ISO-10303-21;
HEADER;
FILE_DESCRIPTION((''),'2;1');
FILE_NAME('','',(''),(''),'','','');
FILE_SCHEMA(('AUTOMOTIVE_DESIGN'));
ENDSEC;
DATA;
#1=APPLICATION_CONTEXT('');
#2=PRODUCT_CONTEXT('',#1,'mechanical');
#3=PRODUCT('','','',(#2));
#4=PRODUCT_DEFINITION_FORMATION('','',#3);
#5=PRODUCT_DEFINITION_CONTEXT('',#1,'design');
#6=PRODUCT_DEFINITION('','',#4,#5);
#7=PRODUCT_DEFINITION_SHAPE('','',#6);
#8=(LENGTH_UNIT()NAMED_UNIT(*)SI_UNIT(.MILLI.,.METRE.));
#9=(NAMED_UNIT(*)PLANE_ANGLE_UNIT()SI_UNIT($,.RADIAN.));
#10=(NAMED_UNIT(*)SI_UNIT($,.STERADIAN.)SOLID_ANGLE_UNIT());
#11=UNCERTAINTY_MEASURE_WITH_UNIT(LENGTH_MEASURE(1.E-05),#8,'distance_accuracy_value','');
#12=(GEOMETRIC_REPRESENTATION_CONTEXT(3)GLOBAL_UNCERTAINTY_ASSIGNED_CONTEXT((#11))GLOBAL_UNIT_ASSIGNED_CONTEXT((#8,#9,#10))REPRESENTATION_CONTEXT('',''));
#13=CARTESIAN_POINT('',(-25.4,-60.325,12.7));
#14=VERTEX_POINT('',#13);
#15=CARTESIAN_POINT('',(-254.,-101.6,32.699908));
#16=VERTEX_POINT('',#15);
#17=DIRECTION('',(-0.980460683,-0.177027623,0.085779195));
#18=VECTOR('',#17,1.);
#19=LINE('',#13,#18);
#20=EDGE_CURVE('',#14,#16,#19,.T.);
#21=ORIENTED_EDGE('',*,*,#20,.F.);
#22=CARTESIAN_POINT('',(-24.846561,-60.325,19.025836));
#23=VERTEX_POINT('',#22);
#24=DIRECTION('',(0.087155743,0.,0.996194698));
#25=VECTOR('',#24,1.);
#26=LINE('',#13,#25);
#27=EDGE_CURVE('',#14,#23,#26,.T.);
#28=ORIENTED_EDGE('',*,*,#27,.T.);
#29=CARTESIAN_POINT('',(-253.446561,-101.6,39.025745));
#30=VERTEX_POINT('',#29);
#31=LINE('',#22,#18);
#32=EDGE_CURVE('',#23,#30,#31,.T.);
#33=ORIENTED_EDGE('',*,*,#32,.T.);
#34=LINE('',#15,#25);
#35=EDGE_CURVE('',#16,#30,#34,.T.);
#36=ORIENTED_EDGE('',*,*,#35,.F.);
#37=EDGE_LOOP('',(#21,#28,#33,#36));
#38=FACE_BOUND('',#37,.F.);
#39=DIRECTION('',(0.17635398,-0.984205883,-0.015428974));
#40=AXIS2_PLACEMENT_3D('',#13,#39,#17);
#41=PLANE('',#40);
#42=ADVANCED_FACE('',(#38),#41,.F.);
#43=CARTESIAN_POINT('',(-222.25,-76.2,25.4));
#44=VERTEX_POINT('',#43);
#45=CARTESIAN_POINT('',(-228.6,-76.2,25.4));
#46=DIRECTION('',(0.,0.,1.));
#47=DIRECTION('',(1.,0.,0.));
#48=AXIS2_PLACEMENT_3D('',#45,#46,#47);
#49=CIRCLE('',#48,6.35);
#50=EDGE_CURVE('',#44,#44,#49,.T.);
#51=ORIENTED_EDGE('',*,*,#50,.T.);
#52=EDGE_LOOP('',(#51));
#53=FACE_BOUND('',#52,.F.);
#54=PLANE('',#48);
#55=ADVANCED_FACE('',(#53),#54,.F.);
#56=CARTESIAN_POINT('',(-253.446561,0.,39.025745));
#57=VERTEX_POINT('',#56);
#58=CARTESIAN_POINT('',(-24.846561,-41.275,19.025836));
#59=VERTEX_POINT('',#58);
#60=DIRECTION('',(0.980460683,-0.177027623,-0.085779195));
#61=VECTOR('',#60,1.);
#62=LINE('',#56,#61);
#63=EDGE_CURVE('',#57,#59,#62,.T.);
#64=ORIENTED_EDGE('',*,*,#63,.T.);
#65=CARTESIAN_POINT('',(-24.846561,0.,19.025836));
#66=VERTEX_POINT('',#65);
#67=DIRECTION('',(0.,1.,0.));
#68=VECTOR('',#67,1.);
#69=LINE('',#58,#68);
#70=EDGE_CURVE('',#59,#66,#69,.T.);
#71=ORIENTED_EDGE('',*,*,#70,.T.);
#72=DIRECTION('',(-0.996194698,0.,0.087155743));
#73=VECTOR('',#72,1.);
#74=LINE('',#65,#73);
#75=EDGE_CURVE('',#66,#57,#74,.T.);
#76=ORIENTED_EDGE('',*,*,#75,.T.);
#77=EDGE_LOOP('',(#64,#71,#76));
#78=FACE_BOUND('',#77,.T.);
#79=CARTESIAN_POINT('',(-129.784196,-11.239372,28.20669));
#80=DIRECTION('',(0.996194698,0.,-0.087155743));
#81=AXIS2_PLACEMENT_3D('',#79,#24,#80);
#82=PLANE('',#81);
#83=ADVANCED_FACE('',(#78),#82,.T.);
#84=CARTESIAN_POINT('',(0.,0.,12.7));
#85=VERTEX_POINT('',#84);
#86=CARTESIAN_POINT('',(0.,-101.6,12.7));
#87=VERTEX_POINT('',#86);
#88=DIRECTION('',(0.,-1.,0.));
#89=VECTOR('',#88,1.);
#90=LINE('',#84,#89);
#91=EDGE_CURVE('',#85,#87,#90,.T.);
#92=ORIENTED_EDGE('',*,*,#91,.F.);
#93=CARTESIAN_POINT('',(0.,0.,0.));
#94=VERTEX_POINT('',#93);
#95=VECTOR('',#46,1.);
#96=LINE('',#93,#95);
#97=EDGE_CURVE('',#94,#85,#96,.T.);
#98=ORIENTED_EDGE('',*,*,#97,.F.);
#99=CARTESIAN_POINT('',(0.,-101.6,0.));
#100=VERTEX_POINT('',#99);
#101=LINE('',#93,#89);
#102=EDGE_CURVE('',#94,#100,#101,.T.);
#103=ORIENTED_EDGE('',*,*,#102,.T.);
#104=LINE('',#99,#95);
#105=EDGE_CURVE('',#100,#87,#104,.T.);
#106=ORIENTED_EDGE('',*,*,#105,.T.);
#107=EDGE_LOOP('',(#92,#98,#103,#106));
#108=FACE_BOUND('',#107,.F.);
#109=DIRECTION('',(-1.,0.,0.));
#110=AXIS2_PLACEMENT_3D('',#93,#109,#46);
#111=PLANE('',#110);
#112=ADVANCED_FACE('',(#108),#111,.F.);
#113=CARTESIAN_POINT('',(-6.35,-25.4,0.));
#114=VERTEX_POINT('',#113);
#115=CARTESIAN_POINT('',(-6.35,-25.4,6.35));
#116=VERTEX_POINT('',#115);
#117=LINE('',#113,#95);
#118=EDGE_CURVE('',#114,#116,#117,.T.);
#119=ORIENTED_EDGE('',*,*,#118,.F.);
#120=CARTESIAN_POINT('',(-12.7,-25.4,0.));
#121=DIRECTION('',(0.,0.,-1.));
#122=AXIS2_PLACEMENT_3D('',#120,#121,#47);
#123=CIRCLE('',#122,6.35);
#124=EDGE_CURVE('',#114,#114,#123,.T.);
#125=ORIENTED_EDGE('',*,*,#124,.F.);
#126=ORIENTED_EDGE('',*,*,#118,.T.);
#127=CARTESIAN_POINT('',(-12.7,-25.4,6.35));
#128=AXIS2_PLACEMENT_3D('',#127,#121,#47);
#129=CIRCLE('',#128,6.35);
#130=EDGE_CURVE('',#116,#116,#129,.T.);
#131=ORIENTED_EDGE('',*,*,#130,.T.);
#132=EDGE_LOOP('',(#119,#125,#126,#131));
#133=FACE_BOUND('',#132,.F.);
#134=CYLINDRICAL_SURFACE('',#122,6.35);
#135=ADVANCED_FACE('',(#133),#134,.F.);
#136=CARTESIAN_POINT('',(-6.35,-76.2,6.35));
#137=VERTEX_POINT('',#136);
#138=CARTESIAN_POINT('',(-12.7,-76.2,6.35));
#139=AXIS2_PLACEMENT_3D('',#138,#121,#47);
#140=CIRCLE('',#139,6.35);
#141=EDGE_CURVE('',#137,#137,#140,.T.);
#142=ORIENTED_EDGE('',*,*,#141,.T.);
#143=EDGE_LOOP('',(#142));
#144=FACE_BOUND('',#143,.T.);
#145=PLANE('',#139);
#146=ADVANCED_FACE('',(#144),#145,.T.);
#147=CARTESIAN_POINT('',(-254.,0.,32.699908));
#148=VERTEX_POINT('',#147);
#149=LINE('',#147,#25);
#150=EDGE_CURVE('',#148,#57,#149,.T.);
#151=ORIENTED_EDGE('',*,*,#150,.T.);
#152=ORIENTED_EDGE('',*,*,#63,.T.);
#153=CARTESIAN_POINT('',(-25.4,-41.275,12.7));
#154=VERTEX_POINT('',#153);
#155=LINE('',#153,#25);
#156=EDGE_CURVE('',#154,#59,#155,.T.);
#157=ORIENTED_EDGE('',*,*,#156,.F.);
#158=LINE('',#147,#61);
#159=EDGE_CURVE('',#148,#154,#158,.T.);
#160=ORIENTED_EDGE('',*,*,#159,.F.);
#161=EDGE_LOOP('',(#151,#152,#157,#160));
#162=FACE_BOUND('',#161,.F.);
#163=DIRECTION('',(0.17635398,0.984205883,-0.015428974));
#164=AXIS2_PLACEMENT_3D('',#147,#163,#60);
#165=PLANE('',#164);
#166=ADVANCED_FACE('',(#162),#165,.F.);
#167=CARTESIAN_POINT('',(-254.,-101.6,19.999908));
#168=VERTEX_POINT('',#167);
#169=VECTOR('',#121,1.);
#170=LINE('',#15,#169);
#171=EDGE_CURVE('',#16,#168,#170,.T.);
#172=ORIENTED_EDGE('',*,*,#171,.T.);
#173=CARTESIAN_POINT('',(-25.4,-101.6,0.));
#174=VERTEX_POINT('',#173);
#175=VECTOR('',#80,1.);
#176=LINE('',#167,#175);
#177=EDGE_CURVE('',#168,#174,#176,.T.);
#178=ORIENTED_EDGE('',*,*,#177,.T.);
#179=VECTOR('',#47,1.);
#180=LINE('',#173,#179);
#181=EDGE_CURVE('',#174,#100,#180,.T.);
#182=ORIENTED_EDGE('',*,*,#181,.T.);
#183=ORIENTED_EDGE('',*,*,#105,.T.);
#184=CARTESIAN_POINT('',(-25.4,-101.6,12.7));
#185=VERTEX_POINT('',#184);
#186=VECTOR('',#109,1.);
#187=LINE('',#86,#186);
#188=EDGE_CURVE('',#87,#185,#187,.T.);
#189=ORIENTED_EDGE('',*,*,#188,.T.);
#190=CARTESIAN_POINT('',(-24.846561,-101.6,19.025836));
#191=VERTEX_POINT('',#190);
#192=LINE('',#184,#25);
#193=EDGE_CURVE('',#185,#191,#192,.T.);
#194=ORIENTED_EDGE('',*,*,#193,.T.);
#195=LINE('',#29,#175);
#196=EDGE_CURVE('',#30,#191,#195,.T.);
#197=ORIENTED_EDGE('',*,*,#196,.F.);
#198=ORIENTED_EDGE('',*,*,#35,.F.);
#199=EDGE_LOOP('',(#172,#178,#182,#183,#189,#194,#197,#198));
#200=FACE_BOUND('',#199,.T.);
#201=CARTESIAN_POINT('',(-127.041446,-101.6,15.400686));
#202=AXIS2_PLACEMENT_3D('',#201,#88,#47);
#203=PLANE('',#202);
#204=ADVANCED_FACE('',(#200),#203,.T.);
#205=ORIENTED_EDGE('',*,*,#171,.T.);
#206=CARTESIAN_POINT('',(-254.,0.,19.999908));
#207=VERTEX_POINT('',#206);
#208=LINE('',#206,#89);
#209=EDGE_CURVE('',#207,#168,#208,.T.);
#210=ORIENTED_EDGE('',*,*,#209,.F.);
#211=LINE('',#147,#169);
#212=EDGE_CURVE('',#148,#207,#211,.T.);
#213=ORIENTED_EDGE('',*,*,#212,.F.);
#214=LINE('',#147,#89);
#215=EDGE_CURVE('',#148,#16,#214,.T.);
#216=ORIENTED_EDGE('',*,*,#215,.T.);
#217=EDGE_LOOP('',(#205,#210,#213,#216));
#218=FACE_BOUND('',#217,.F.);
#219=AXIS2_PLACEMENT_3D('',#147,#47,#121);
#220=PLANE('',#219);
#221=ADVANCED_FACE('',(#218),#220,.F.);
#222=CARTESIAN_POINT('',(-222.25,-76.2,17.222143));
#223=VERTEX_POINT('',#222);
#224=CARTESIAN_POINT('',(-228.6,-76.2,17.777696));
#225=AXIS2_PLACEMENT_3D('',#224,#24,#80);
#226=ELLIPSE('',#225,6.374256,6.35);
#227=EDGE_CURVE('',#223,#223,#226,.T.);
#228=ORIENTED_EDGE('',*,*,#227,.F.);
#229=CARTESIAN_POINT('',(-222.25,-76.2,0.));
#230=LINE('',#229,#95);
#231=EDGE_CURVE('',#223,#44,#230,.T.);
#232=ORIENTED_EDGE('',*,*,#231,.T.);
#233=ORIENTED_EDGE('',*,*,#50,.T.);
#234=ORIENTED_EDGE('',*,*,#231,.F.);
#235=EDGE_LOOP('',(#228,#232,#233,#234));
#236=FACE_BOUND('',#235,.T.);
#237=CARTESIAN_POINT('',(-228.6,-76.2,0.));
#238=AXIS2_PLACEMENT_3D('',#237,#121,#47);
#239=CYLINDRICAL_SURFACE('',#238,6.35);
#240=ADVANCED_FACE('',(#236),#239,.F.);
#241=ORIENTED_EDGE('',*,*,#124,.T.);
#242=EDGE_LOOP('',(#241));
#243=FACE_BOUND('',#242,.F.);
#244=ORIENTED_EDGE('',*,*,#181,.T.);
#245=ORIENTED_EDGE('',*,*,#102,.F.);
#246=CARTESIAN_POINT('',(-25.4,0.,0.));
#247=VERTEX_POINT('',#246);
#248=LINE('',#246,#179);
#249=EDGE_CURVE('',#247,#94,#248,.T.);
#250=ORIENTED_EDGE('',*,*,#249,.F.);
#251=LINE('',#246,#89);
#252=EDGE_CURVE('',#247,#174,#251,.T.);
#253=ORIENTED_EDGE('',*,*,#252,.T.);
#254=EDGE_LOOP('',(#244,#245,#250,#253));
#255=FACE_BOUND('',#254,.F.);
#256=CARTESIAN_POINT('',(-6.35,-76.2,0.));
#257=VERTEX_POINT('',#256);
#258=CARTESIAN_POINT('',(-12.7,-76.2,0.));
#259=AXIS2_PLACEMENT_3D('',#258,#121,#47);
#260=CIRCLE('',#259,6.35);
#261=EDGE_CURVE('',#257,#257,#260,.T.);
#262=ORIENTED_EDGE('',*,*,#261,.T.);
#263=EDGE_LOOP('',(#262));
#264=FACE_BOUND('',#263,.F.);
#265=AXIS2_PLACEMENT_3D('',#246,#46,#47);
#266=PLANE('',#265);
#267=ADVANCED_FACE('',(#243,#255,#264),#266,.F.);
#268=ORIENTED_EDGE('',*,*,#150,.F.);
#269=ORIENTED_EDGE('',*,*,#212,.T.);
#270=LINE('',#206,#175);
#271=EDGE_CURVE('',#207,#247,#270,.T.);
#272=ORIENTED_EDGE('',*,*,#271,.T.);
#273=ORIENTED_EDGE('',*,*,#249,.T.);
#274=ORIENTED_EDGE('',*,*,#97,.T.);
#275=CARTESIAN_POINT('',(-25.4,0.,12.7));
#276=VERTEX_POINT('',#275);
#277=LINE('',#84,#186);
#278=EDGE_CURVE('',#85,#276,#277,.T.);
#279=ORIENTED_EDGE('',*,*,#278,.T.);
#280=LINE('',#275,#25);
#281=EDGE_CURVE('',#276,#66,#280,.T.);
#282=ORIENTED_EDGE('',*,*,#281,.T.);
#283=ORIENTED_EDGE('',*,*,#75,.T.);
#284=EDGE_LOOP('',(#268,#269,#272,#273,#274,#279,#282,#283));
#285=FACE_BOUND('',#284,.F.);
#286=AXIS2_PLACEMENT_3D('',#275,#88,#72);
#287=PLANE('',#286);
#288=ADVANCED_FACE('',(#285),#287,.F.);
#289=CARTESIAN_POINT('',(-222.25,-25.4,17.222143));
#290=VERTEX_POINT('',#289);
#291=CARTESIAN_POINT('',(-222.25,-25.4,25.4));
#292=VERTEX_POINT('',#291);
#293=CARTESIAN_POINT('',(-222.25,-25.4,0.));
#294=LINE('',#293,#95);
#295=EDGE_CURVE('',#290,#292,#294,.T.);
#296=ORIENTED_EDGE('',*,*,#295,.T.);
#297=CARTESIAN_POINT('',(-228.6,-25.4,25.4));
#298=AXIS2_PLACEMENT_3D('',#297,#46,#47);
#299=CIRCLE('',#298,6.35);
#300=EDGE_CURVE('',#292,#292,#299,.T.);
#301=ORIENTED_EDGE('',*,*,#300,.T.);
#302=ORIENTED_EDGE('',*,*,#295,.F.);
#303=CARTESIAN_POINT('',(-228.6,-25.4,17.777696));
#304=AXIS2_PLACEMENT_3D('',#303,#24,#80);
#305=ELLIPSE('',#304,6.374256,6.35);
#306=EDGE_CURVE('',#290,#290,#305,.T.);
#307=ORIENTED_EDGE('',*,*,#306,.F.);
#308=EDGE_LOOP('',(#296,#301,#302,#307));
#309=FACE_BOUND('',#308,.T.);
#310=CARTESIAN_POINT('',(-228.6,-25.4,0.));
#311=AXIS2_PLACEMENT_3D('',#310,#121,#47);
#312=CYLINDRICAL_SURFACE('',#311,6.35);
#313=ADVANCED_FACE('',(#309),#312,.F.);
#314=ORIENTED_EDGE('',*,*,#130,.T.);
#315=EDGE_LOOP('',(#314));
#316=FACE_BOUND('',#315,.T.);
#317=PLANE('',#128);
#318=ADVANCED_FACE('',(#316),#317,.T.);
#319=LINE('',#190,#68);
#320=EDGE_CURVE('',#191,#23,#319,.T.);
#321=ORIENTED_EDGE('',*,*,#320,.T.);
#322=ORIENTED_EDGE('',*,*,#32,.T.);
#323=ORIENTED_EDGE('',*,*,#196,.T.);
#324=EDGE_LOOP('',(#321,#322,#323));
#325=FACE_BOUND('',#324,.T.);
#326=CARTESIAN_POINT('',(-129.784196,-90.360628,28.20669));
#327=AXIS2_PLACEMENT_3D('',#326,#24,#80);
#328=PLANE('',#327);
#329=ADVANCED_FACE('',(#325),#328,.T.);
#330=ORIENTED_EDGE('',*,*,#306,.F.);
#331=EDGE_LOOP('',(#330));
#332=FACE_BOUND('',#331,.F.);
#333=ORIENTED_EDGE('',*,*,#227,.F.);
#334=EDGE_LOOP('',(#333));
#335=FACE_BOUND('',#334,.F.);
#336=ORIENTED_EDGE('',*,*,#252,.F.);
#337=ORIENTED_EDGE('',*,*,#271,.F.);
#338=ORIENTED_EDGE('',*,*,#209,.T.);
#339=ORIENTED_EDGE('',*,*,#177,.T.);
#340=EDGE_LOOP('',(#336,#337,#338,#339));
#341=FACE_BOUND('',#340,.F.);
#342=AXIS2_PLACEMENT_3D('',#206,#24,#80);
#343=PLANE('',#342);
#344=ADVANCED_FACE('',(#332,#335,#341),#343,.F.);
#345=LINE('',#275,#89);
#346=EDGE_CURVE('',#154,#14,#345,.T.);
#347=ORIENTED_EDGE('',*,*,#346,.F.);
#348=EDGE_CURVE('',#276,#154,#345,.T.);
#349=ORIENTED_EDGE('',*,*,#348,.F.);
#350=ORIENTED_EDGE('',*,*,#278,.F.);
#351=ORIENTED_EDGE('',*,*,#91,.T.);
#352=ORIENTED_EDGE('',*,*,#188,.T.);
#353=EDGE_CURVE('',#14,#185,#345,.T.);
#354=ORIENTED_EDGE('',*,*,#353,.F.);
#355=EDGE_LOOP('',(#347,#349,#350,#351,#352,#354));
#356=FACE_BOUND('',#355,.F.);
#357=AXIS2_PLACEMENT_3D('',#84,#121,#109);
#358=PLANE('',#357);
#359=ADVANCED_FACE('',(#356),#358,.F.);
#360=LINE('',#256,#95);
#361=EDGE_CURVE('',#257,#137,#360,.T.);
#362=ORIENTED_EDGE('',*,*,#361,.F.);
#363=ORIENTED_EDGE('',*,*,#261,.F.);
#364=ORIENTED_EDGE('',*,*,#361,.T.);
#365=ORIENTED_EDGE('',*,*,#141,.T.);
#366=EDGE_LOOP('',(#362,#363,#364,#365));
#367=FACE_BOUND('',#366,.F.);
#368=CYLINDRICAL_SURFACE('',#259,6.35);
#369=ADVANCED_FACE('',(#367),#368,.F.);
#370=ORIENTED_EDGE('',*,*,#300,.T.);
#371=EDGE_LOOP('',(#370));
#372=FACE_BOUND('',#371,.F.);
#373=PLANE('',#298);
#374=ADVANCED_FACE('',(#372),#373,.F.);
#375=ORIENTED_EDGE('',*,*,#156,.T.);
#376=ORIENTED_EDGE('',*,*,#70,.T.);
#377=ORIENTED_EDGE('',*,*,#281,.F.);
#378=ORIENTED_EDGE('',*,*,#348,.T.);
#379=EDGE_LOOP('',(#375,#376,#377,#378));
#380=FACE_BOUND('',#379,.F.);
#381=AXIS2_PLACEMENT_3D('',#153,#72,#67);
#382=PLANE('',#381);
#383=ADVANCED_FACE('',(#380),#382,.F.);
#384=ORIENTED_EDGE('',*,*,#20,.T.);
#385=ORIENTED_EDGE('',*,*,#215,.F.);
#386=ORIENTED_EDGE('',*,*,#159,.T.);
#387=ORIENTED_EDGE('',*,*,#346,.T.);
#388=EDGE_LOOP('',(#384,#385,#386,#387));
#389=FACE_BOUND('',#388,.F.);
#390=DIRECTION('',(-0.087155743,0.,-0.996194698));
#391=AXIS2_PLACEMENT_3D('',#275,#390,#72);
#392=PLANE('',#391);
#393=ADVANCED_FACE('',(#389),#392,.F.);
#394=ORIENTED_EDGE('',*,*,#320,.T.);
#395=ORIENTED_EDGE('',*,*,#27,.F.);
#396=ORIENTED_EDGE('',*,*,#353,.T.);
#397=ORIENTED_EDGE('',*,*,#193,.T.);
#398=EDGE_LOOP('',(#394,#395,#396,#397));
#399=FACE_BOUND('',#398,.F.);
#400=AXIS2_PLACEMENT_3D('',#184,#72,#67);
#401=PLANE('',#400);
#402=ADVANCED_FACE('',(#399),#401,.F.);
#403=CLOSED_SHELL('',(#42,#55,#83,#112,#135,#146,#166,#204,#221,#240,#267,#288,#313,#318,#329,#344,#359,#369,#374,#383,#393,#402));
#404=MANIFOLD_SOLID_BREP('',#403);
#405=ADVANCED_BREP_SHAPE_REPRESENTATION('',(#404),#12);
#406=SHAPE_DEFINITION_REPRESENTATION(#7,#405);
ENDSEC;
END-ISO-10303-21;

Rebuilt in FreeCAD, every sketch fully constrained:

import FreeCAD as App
import Part
import Sketcher
Q = App.Units.Quantity


def add_polygon(sketch, points):
    """Adds a closed chain of lines whose ends are joined by coincident constraints."""
    first, n = sketch.GeometryCount, len(points)
    for a, b in zip(points, points[1:] + points[:1]):
        sketch.addGeometry(Part.LineSegment(App.Vector(*a, 0), App.Vector(*b, 0)), False)
    for i in range(n):
        sketch.addConstraint(Sketcher.Constraint("Coincident", first + i, 2, first + (i + 1) % n, 1))

doc = App.newDocument("Part")
body = doc.addObject("PartDesign::Body", "Body")

sketch1 = body.newObject("Sketcher::SketchObject", "Sketch")
sketch1.AttachmentSupport = (doc.getObject("XZ_Plane"), [""])
sketch1.MapMode = "FlatFace"
add_polygon(sketch1, [(-25, 0), (0, 0), (0, 13), (-25, 13), (-254, 33), (-254, 20)])
sketch1.addConstraint([
    Sketcher.Constraint("Horizontal", 0),
    Sketcher.Constraint("Vertical", 1),
    Sketcher.Constraint("Horizontal", 2),
    Sketcher.Constraint("Vertical", 4),
    Sketcher.Constraint("Coincident", 0, 2, -1, 1),
    Sketcher.Constraint("Parallel", 3, 5),
    Sketcher.Constraint("Vertical", 2, 2, 5, 2),
    Sketcher.Constraint("DistanceX", 0, 1, 0, 2, Q("1 in")),
    Sketcher.Constraint("DistanceY", 1, 1, 1, 2, Q("0.5 in")),
    Sketcher.Constraint("DistanceX", 3, 2, -1, 1, Q("10 in")),
    Sketcher.Constraint("Angle", 3, Q("175 deg")),
])
pad1 = body.newObject("PartDesign::Pad", "Pad")
pad1.Profile = sketch1
pad1.Length = Q("4 in")

sketch2 = body.newObject("Sketcher::SketchObject", "Sketch001")
sketch2.Placement = App.Placement(App.Vector(0.909724, 0, 10.398197), App.Rotation(App.Vector(0.996194698, 0, -0.087155743), App.Vector(0, 1, 0), App.Vector(0.087155743, 0, 0.996194698), "ZXY"))
add_polygon(sketch2, [(-26, 0), (-256, 0), (-26, -41)])
add_polygon(sketch2, [(-26, -60), (-256, -102), (-26, -102)])
sketch2.addConstraint([
    Sketcher.Constraint("Horizontal", 0),
    Sketcher.Constraint("Vertical", 2),
    Sketcher.Constraint("Horizontal", 4),
    Sketcher.Constraint("Vertical", 5),
    Sketcher.Constraint("PointOnObject", 0, 2, -1),
    Sketcher.Constraint("Vertical", 0, 2, 3, 2),
    Sketcher.Constraint("Vertical", 2, 2, 4, 2),
    Sketcher.Constraint("Equal", 2, 5),
    Sketcher.Constraint("DistanceY", 3, 2, -1, 1, Q("4 in")),
    Sketcher.Constraint("DistanceY", 2, 1, 2, 2, Q("1.625 in")),
    Sketcher.Constraint("DistanceX", 0, 2, 0, 1, Q("229.473215 mm")),
    Sketcher.Constraint("DistanceX", 0, 2, -1, 1, Q("255.883438 mm")),
])
pad2 = body.newObject("PartDesign::Pad", "Pad001")
pad2.Profile = sketch2
pad2.Length = Q("0.25 in")

sketch3 = body.newObject("Sketcher::SketchObject", "Sketch002")
sketch3.AttachmentSupport = (doc.getObject("XY_Plane"), [""])
sketch3.MapMode = "FlatFace"
sketch3.addGeometry([
    Part.Circle(App.Vector(-229, -25, 0), App.Vector(0, 0, 1), 6),
    Part.Circle(App.Vector(-229, -76, 0), App.Vector(0, 0, 1), 6),
], False)
sketch3.addConstraint([
    Sketcher.Constraint("Equal", 0, 1),
    Sketcher.Constraint("Vertical", 0, 3, 1, 3),
    Sketcher.Constraint("Diameter", 0, Q("0.5 in")),
    Sketcher.Constraint("DistanceX", 0, 3, -1, 1, Q("9 in")),
    Sketcher.Constraint("DistanceY", 0, 3, -1, 1, Q("1 in")),
    Sketcher.Constraint("DistanceY", 1, 3, -1, 1, Q("3 in")),
])
pocket1 = body.newObject("PartDesign::Pocket", "Pocket")
pocket1.Profile = sketch3
pocket1.Length = Q("1 in")
pocket1.Reversed = True

sketch4 = body.newObject("Sketcher::SketchObject", "Sketch003")
sketch4.AttachmentSupport = (doc.getObject("XY_Plane"), [""])
sketch4.MapMode = "FlatFace"
sketch4.addGeometry([
    Part.Circle(App.Vector(-13, -25, 0), App.Vector(0, 0, 1), 6),
    Part.Circle(App.Vector(-13, -76, 0), App.Vector(0, 0, 1), 6),
], False)
sketch4.addConstraint([
    Sketcher.Constraint("Equal", 0, 1),
    Sketcher.Constraint("Vertical", 0, 3, 1, 3),
    Sketcher.Constraint("Diameter", 0, Q("0.5 in")),
    Sketcher.Constraint("DistanceY", 0, 3, -1, 1, Q("1 in")),
    Sketcher.Constraint("DistanceY", 1, 3, -1, 1, Q("3 in")),
    Sketcher.Constraint("DistanceX", 0, 3, -1, 1, Q("0.5 in")),
])
pocket2 = body.newObject("PartDesign::Pocket", "Pocket001")
pocket2.Profile = sketch4
pocket2.Length = Q("0.25 in")
pocket2.Reversed = True

doc.recompute()
